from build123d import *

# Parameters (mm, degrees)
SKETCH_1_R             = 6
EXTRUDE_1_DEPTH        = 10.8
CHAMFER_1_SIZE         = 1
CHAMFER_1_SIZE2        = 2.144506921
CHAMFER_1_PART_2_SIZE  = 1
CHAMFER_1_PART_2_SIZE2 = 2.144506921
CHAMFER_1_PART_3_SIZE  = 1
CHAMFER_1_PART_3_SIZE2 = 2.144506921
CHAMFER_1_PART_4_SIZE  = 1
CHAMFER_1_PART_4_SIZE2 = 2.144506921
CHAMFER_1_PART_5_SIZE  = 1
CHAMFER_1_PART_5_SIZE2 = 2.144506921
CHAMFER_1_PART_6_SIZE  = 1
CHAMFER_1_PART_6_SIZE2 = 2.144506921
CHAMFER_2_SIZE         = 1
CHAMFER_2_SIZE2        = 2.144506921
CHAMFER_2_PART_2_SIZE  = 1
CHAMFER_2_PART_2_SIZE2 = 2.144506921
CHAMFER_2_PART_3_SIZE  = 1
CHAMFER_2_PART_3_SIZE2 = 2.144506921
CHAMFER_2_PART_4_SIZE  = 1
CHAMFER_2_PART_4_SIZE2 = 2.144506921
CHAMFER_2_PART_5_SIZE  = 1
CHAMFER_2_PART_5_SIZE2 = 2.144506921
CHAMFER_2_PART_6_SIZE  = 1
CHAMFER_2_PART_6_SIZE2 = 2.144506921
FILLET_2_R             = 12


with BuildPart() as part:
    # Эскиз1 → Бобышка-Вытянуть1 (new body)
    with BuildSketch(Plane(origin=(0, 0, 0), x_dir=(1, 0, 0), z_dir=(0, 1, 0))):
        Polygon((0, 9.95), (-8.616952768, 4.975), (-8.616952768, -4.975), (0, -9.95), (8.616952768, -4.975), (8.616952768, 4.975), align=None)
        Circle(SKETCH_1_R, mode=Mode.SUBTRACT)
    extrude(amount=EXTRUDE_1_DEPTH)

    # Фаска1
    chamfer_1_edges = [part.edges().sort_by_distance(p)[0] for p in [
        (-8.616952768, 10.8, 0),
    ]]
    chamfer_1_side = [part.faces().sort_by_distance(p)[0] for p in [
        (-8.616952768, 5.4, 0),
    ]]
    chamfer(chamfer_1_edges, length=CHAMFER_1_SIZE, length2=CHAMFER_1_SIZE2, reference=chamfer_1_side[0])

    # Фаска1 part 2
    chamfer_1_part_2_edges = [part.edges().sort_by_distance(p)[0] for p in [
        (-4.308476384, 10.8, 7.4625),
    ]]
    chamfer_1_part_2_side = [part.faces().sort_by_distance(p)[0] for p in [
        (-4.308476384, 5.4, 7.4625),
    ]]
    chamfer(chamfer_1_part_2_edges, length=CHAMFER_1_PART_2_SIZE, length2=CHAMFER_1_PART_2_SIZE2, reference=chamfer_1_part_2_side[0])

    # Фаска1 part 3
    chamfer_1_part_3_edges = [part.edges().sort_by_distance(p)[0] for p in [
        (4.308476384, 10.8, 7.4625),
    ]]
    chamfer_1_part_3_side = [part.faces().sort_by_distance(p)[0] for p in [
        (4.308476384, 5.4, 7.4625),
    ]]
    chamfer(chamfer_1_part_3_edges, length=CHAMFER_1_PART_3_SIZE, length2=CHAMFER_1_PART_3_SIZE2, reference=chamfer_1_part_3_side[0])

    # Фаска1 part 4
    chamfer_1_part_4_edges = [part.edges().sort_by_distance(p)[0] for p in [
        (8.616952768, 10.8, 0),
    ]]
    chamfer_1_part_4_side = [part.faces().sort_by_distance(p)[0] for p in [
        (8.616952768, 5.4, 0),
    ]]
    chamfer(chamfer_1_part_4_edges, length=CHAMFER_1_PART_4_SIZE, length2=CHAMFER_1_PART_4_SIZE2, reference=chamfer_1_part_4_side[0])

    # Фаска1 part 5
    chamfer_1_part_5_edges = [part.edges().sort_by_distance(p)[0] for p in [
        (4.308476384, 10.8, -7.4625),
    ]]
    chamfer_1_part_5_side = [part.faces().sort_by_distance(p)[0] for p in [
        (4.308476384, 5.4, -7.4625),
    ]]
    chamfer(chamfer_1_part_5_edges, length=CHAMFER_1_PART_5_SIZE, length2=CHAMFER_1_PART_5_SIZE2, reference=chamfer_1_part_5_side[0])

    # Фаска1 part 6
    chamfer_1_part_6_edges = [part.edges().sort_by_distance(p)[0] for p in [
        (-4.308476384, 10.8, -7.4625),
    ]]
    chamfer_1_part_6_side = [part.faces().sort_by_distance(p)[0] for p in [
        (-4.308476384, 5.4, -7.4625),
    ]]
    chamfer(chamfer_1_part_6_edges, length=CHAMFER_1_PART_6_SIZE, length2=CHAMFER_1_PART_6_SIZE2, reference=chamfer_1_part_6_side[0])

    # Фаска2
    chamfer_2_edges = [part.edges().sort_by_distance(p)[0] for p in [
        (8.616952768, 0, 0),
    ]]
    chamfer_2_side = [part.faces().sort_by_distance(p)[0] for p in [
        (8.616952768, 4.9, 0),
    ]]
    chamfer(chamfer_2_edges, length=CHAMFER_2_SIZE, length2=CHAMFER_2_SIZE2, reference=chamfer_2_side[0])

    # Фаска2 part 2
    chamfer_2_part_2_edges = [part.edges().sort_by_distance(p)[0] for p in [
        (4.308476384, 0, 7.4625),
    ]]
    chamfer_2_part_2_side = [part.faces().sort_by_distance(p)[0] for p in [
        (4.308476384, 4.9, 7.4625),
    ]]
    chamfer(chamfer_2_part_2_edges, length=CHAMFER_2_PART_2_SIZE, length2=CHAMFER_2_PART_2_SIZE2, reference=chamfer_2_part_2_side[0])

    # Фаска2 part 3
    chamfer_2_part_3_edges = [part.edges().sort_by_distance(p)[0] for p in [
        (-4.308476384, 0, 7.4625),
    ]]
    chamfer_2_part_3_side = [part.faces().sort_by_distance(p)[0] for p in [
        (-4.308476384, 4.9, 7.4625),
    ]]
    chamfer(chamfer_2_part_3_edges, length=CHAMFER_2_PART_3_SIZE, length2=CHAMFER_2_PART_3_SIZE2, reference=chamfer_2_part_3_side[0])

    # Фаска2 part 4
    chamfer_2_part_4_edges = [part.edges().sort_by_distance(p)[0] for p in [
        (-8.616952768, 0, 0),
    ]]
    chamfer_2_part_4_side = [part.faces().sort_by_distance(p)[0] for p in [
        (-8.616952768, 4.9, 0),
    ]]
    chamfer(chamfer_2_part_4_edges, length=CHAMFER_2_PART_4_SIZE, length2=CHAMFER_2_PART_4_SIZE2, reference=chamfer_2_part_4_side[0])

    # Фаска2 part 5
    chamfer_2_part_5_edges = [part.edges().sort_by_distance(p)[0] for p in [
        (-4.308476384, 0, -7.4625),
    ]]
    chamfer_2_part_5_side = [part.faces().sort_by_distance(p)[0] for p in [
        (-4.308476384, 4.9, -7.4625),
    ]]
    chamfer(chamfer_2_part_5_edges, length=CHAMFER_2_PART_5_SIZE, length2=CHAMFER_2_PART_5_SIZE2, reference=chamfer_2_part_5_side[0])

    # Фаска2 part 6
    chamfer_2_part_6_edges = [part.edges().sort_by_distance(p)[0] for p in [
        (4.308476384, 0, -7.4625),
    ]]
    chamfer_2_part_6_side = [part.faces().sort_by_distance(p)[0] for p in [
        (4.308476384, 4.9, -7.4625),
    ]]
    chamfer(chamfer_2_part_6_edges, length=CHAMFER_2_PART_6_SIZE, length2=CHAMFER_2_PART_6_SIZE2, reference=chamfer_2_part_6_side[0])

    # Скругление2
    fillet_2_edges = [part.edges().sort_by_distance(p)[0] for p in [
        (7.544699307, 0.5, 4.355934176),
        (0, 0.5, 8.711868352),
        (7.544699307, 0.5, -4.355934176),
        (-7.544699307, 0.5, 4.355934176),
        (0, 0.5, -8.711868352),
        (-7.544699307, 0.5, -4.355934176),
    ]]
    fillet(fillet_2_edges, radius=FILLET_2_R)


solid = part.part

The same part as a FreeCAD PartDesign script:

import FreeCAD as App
import Part
import Sketcher

V = App.Vector
Q = App.Units.Quantity


def edges_at(feature, points):
    """Names of the edges that pass closest to the given points."""
    edges = feature.Shape.Edges
    near = lambda p: min(range(len(edges)), key=lambda i: edges[i].distToShape(Part.Vertex(*p))[0])
    return sorted({f"Edge{near(p) + 1}" for p in points})

doc = App.newDocument("Part")
body = doc.addObject("PartDesign::Body", "Body")

# Sketch on XZ plane
sketch1 = body.newObject("Sketcher::SketchObject", "Sketch")
sketch1.AttachmentSupport = (doc.getObject("XZ_Plane"), [""])
sketch1.MapMode = "FlatFace"
sketch1.addGeometry(Part.LineSegment(V(0, -10, 0), V(-9, -5, 0)), False)
sketch1.addGeometry(Part.LineSegment(V(-9, -5, 0), V(-9, 5, 0)), False)
sketch1.addGeometry(Part.LineSegment(V(-9, 5, 0), V(0, 10, 0)), False)
sketch1.addGeometry(Part.LineSegment(V(0, 10, 0), V(9, 5, 0)), False)
sketch1.addGeometry(Part.LineSegment(V(9, 5, 0), V(9, -5, 0)), False)
sketch1.addGeometry(Part.LineSegment(V(9, -5, 0), V(0, -10, 0)), False)
sketch1.addGeometry(Part.Circle(V(0, 0, 0), V(0, 0, 1), 6), False)
sketch1.addConstraint(Sketcher.Constraint("Coincident", 0, 2, 1, 1))
sketch1.addConstraint(Sketcher.Constraint("Coincident", 1, 2, 2, 1))
sketch1.addConstraint(Sketcher.Constraint("Coincident", 2, 2, 3, 1))
sketch1.addConstraint(Sketcher.Constraint("Coincident", 3, 2, 4, 1))
sketch1.addConstraint(Sketcher.Constraint("Coincident", 4, 2, 5, 1))
sketch1.addConstraint(Sketcher.Constraint("Coincident", 5, 2, 0, 1))
sketch1.addConstraint(Sketcher.Constraint("Vertical", 1))
sketch1.addConstraint(Sketcher.Constraint("Vertical", 4))
sketch1.addConstraint(Sketcher.Constraint("Coincident", 6, 3, -1, 1))
sketch1.addConstraint(Sketcher.Constraint("Symmetric", 0, 2, 3, 2, -1, 1))
sketch1.addConstraint(Sketcher.Constraint("Symmetric", 2, 2, 5, 2, -1, 1))
sketch1.addConstraint(Sketcher.Constraint("PointOnObject", 2, 2, -2))
sketch1.addConstraint(Sketcher.Constraint("Parallel", 2, 5))
sketch1.addConstraint(Sketcher.Constraint("Horizontal", 1, 2, 3, 2))
sketch1.addConstraint(Sketcher.Constraint("Diameter", 6, 12.0))
sketch1.addConstraint(Sketcher.Constraint("Angle", 0, Q("150 deg")))
sketch1.addConstraint(Sketcher.Constraint("DistanceY", 1, 1, 1, 2, 9.95))
sketch1.addConstraint(Sketcher.Constraint("Distance", 0, 9.95))
pad1 = body.newObject("PartDesign::Pad", "Pad")
pad1.Profile = sketch1
pad1.Length = 10.8
pad1.Reversed = True
doc.recompute()

chamfer = body.newObject("PartDesign::Chamfer", "Chamfer")
chamfer.Base = (pad1, edges_at(pad1, [(-8.617, 10.8, 0)]))
chamfer.ChamferType = "Two distances"
chamfer.Size = 1
chamfer.Size2 = 2.144507
doc.recompute()

chamfer2 = body.newObject("PartDesign::Chamfer", "Chamfer001")
chamfer2.Base = (chamfer, edges_at(chamfer, [(-3.236, 10.8, 8.082)]))
chamfer2.ChamferType = "Two distances"
chamfer2.Size = 1
chamfer2.Size2 = 2.144507
chamfer2.FlipDirection = True
doc.recompute()

chamfer3 = body.newObject("PartDesign::Chamfer", "Chamfer002")
chamfer3.Base = (chamfer2, edges_at(chamfer2, [(5.381, 10.8, 6.843)]))
chamfer3.ChamferType = "Two distances"
chamfer3.Size = 1
chamfer3.Size2 = 2.144507
chamfer3.FlipDirection = True
doc.recompute()

chamfer4 = body.newObject("PartDesign::Chamfer", "Chamfer003")
chamfer4.Base = (chamfer3, edges_at(chamfer3, [(8.617, 10.8, -1.238)]))
chamfer4.ChamferType = "Two distances"
chamfer4.Size = 1
chamfer4.Size2 = 2.144507
chamfer4.FlipDirection = True
doc.recompute()

chamfer5 = body.newObject("PartDesign::Chamfer", "Chamfer004")
chamfer5.Base = (chamfer4, edges_at(chamfer4, [(3.236, 10.8, -8.082)]))
chamfer5.ChamferType = "Two distances"
chamfer5.Size = 1
chamfer5.Size2 = 2.144507
chamfer5.FlipDirection = True
doc.recompute()

chamfer6 = body.newObject("PartDesign::Chamfer", "Chamfer005")
chamfer6.Base = (chamfer5, edges_at(chamfer5, [(-4.308, 10.8, -7.463)]))
chamfer6.ChamferType = "Two distances"
chamfer6.Size = 1
chamfer6.Size2 = 2.144507
chamfer6.FlipDirection = True
doc.recompute()

chamfer7 = body.newObject("PartDesign::Chamfer", "Chamfer006")
chamfer7.Base = (chamfer6, edges_at(chamfer6, [(8.617, 0, 0)]))
chamfer7.ChamferType = "Two distances"
chamfer7.Size = 1
chamfer7.Size2 = 2.144507
doc.recompute()

chamfer8 = body.newObject("PartDesign::Chamfer", "Chamfer007")
chamfer8.Base = (chamfer7, edges_at(chamfer7, [(3.236, 0, 8.082)]))
chamfer8.ChamferType = "Two distances"
chamfer8.Size = 1
chamfer8.Size2 = 2.144507
chamfer8.FlipDirection = True
doc.recompute()

chamfer9 = body.newObject("PartDesign::Chamfer", "Chamfer008")
chamfer9.Base = (chamfer8, edges_at(chamfer8, [(-5.381, 0, 6.843)]))
chamfer9.ChamferType = "Two distances"
chamfer9.Size = 1
chamfer9.Size2 = 2.144507
chamfer9.FlipDirection = True
doc.recompute()

chamfer10 = body.newObject("PartDesign::Chamfer", "Chamfer009")
chamfer10.Base = (chamfer9, edges_at(chamfer9, [(-8.617, 0, -1.238)]))
chamfer10.ChamferType = "Two distances"
chamfer10.Size = 1
chamfer10.Size2 = 2.144507
chamfer10.FlipDirection = True
doc.recompute()

chamfer11 = body.newObject("PartDesign::Chamfer", "Chamfer010")
chamfer11.Base = (chamfer10, edges_at(chamfer10, [(-3.236, 0, -8.082)]))
chamfer11.ChamferType = "Two distances"
chamfer11.Size = 1
chamfer11.Size2 = 2.144507
chamfer11.FlipDirection = True
doc.recompute()

chamfer12 = body.newObject("PartDesign::Chamfer", "Chamfer011")
chamfer12.Base = (chamfer11, edges_at(chamfer11, [(4.308, 0, -7.463)]))
chamfer12.ChamferType = "Two distances"
chamfer12.Size = 1
chamfer12.Size2 = 2.144507
chamfer12.FlipDirection = True
doc.recompute()

fillet = body.newObject("PartDesign::Fillet", "Fillet")
fillet.Base = (chamfer12, edges_at(chamfer12, [
    (7.545, 0.5, 4.356),
    (0, 0.5, 8.712),
    (7.545, 0.5, -4.356),
    (-7.545, 0.5, 4.356),
    (0, 0.5, -8.712),
    (-7.545, 0.5, -4.356),
]))
fillet.Radius = 12

doc.recompute()
